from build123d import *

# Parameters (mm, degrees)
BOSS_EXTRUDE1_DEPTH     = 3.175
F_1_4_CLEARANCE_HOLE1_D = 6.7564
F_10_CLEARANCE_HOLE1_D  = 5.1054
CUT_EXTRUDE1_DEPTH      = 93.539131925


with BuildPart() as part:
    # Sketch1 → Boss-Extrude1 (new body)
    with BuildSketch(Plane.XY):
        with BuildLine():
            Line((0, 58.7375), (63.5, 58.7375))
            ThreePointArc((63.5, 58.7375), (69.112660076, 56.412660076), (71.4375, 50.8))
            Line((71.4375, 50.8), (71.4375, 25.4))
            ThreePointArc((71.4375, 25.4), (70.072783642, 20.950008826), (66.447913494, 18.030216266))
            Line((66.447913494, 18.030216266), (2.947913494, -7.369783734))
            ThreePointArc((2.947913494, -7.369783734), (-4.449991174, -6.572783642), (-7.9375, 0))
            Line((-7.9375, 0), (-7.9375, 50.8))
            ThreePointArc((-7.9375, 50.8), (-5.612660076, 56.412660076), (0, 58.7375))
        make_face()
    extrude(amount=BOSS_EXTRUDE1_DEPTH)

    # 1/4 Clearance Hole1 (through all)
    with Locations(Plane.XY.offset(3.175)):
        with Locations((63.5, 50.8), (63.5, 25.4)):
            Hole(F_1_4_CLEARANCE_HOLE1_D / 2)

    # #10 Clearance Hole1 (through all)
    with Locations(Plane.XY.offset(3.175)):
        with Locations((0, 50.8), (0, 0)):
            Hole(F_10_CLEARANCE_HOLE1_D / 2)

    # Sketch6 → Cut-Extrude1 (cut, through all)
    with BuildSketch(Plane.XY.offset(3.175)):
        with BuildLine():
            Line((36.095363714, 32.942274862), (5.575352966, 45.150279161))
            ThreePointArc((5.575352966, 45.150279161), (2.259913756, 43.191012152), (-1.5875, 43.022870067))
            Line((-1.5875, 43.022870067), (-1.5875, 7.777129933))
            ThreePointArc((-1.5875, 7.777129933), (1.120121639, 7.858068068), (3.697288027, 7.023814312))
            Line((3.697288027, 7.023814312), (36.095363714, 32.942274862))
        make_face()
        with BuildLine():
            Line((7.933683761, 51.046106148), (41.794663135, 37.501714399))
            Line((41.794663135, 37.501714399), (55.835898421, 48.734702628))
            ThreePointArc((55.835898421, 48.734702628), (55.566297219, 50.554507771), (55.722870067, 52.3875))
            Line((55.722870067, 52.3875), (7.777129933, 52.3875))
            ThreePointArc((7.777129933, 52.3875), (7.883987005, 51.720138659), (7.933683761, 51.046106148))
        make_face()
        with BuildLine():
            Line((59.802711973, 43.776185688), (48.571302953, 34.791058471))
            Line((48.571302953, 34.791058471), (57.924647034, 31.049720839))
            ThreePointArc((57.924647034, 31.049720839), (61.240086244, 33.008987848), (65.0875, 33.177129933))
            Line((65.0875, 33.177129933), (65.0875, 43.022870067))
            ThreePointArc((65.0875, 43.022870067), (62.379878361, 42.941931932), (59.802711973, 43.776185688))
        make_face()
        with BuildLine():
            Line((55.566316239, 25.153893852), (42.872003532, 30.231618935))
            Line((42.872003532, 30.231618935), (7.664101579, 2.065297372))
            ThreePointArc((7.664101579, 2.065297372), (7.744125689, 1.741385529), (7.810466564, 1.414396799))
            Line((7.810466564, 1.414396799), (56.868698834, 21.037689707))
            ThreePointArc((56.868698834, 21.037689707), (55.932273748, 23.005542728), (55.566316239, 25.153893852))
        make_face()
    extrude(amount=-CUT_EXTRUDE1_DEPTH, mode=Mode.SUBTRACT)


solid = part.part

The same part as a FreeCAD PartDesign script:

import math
import FreeCAD as App
import Part
import Sketcher
from FreeCAD import Vector
Q = App.Units.Quantity

doc = App.newDocument("Part")
body = doc.addObject("PartDesign::Body", "Body")

sketch1 = doc.addObject("Sketcher::SketchObject", "Sketch")
body.addObject(sketch1)
sketch1.AttachmentSupport = (doc.XY_Plane, [""])
sketch1.MapMode = "FlatFace"
sketch1.addGeometry([
    Part.LineSegment(Vector(64, 59, 0), Vector(0, 59, 0)),
    Part.ArcOfCircle(Part.Circle(Vector(0, 51, 0), Vector(0, 0, 1), 8), math.radians(90), math.radians(180)),
    Part.LineSegment(Vector(-8, 51, 0), Vector(-8, 0, 0)),
    Part.ArcOfCircle(Part.Circle(Vector(0, 0, 0), Vector(0, 0, 1), 8), math.radians(180), math.radians(292)),
    Part.LineSegment(Vector(3, -7, 0), Vector(66, 18, 0)),
    Part.ArcOfCircle(Part.Circle(Vector(64, 25, 0), Vector(0, 0, 1), 8), math.radians(-68), math.radians(0)),
    Part.LineSegment(Vector(71, 25, 0), Vector(71, 51, 0)),
    Part.ArcOfCircle(Part.Circle(Vector(64, 51, 0), Vector(0, 0, 1), 8), math.radians(0), math.radians(90)),
], False)
sketch1.addConstraint([
    Sketcher.Constraint("Tangent", 0, 2, 1, 1),
    Sketcher.Constraint("Tangent", 1, 2, 2, 1),
    Sketcher.Constraint("Tangent", 2, 2, 3, 1),
    Sketcher.Constraint("Tangent", 3, 2, 4, 1),
    Sketcher.Constraint("Tangent", 4, 2, 5, 1),
    Sketcher.Constraint("Tangent", 5, 2, 6, 1),
    Sketcher.Constraint("Tangent", 6, 2, 7, 1),
    Sketcher.Constraint("Tangent", 7, 2, 0, 1),
    Sketcher.Constraint("Horizontal", 0),
    Sketcher.Constraint("Vertical", 2),
    Sketcher.Constraint("Vertical", 6),
    Sketcher.Constraint("Coincident", 3, 3, -1, 1),
    Sketcher.Constraint("Equal", 1, 3),
    Sketcher.Constraint("Equal", 3, 5),
    Sketcher.Constraint("Equal", 5, 7),
    Sketcher.Constraint("DistanceY", 2, 2, 2, 1, Q("2 in")),
    Sketcher.Constraint("DistanceY", 6, 1, 6, 2, Q("1 in")),
    Sketcher.Constraint("DistanceX", 0, 2, 0, 1, Q("2.5 in")),
    Sketcher.Constraint("Radius", 1, Q("0.3125 in")),
])
pad1 = doc.addObject("PartDesign::Pad", "Pad")
body.addObject(pad1)
pad1.Profile = sketch1
pad1.Length = Q("0.125 in")

sketch2 = doc.addObject("Sketcher::SketchObject", "Sketch001")
body.addObject(sketch2)
sketch2.AttachmentSupport = (doc.XY_Plane, [""])
sketch2.MapMode = "FlatFace"
sketch2.AttachmentOffset = App.Placement(Vector(0, 0, 0.125 * 25.4), App.Rotation())
sketch2.addGeometry([
    Part.Circle(Vector(63.5, 50.8, 0), Vector(0, 0, 1), 3.4),
    Part.Circle(Vector(63.5, 25.4, 0), Vector(0, 0, 1), 3.4),
], False)
sketch2.addConstraint([
    Sketcher.Constraint("Equal", 0, 1),
    Sketcher.Constraint("Vertical", 0, 3, 1, 3),
    Sketcher.Constraint("Diameter", 0, Q("0.266 in")),
    Sketcher.Constraint("DistanceY", -1, 1, 0, 3, Q("2 in")),
    Sketcher.Constraint("DistanceY", -1, 1, 1, 3, Q("1 in")),
    Sketcher.Constraint("DistanceX", -1, 1, 0, 3, Q("2.5 in")),
])
doc.recompute()
hole = doc.addObject("PartDesign::Hole", "Hole")
body.addObject(hole)
hole.Profile = sketch2
hole.ThreadType = "None"
hole.Diameter = Q("0.266 in")
hole.DepthType = "ThroughAll"

sketch3 = doc.addObject("Sketcher::SketchObject", "Sketch002")
body.addObject(sketch3)
sketch3.AttachmentSupport = (doc.XY_Plane, [""])
sketch3.MapMode = "FlatFace"
sketch3.AttachmentOffset = App.Placement(Vector(0, 0, 0.125 * 25.4), App.Rotation())
sketch3.addGeometry([
    Part.Circle(Vector(0, 50.8, 0), Vector(0, 0, 1), 2.6),
    Part.Circle(Vector(0, 0, 0), Vector(0, 0, 1), 2.6),
], False)
sketch3.addConstraint([
    Sketcher.Constraint("Coincident", 1, 3, -1, 1),
    Sketcher.Constraint("Equal", 0, 1),
    Sketcher.Constraint("PointOnObject", 0, 3, -2),
    Sketcher.Constraint("Diameter", 0, Q("0.201 in")),
    Sketcher.Constraint("DistanceY", -1, 1, 0, 3, Q("2 in")),
])
doc.recompute()
hole2 = doc.addObject("PartDesign::Hole", "Hole001")
body.addObject(hole2)
hole2.Profile = sketch3
hole2.ThreadType = "None"
hole2.Diameter = Q("0.201 in")
hole2.DepthType = "ThroughAll"

sketch4 = doc.addObject("Sketcher::SketchObject", "Sketch003")
body.addObject(sketch4)
sketch4.AttachmentSupport = (doc.XY_Plane, [""])
sketch4.MapMode = "FlatFace"
sketch4.AttachmentOffset = App.Placement(Vector(0, 0, 0.125 * 25.4), App.Rotation())
sketch4.addGeometry([
    Part.LineSegment(Vector(36.1, 32.9, 0), Vector(5.6, 45.2, 0)),
    Part.ArcOfCircle(Part.Circle(Vector(0, 50.8, 0), Vector(0, 0, 1), 7.9), math.radians(-102), math.radians(-45)),
    Part.LineSegment(Vector(-1.6, 43, 0), Vector(-1.6, 7.8, 0)),
    Part.ArcOfCircle(Part.Circle(Vector(0, 0, 0), Vector(0, 0, 1), 7.9), math.radians(62), math.radians(102)),
    Part.LineSegment(Vector(3.7, 7, 0), Vector(36.1, 32.9, 0)),
    Part.LineSegment(Vector(7.9, 51, 0), Vector(41.8, 37.5, 0)),
    Part.LineSegment(Vector(41.8, 37.5, 0), Vector(55.8, 48.7, 0)),
    Part.ArcOfCircle(Part.Circle(Vector(63.5, 50.8, 0), Vector(0, 0, 1), 7.9), math.radians(168), math.radians(195)),
    Part.LineSegment(Vector(55.7, 52.4, 0), Vector(7.8, 52.4, 0)),
    Part.ArcOfCircle(Part.Circle(Vector(0, 50.8, 0), Vector(0, 0, 1), 7.9), math.radians(1.78), math.radians(11.54)),
    Part.LineSegment(Vector(59.8, 43.8, 0), Vector(48.6, 34.8, 0)),
    Part.LineSegment(Vector(48.6, 34.8, 0), Vector(57.9, 31, 0)),
    Part.ArcOfCircle(Part.Circle(Vector(63.5, 25.4, 0), Vector(0, 0, 1), 7.9), math.radians(78), math.radians(135)),
    Part.LineSegment(Vector(65.1, 33.2, 0), Vector(65.1, 43, 0)),
    Part.ArcOfCircle(Part.Circle(Vector(63.5, 50.8, 0), Vector(0, 0, 1), 7.9), math.radians(-118), math.radians(-78)),
    Part.LineSegment(Vector(55.6, 25.2, 0), Vector(42.9, 30.2, 0)),
    Part.LineSegment(Vector(42.9, 30.2, 0), Vector(7.7, 2.1, 0)),
    Part.ArcOfCircle(Part.Circle(Vector(0, 0, 0), Vector(0, 0, 1), 7.9), math.radians(10.26), math.radians(15.08)),
    Part.LineSegment(Vector(7.8, 1.4, 0), Vector(56.9, 21, 0)),
    Part.ArcOfCircle(Part.Circle(Vector(63.5, 25.4, 0), Vector(0, 0, 1), 7.9), math.radians(-178), math.radians(-147)),
], False)
sketch4.addConstraint([
    Sketcher.Constraint("Coincident", 0, 2, 1, 2),
    Sketcher.Constraint("Coincident", 1, 1, 2, 1),
    Sketcher.Constraint("Coincident", 2, 2, 3, 2),
    Sketcher.Constraint("Coincident", 3, 1, 4, 1),
    Sketcher.Constraint("Coincident", 4, 2, 0, 1),
    Sketcher.Constraint("Coincident", 5, 2, 6, 1),
    Sketcher.Constraint("Coincident", 6, 2, 7, 2),
    Sketcher.Constraint("Coincident", 7, 1, 8, 1),
    Sketcher.Constraint("Coincident", 8, 2, 9, 2),
    Sketcher.Constraint("Coincident", 9, 1, 5, 1),
    Sketcher.Constraint("Coincident", 10, 2, 11, 1),
    Sketcher.Constraint("Coincident", 11, 2, 12, 2),
    Sketcher.Constraint("Coincident", 12, 1, 13, 1),
    Sketcher.Constraint("Coincident", 13, 2, 14, 2),
    Sketcher.Constraint("Coincident", 14, 1, 10, 1),
    Sketcher.Constraint("Coincident", 15, 2, 16, 1),
    Sketcher.Constraint("Coincident", 16, 2, 17, 2),
    Sketcher.Constraint("Coincident", 17, 1, 18, 1),
    Sketcher.Constraint("Coincident", 18, 2, 19, 2),
    Sketcher.Constraint("Coincident", 19, 1, 15, 1),
    Sketcher.Constraint("Vertical", 2),
    Sketcher.Constraint("Horizontal", 8),
    Sketcher.Constraint("Vertical", 13),
    Sketcher.Constraint("Coincident", 3, 3, -1, 1),
    Sketcher.Constraint("Coincident", 17, 3, -1, 1),
    Sketcher.Constraint("Coincident", 9, 3, 1, 3),
    Sketcher.Constraint("Coincident", 14, 3, 7, 3),
    Sketcher.Constraint("Coincident", 19, 3, 12, 3),
    Sketcher.Constraint("Equal", 1, 3),
    Sketcher.Constraint("Equal", 3, 7),
    Sketcher.Constraint("Equal", 7, 9),
    Sketcher.Constraint("Equal", 9, 12),
    Sketcher.Constraint("Equal", 12, 14),
    Sketcher.Constraint("Equal", 14, 17),
    Sketcher.Constraint("Equal", 17, 19),
    Sketcher.Constraint("PointOnObject", 1, 3, -2),
    Sketcher.Constraint("Parallel", 0, 5),
    Sketcher.Constraint("Parallel", 4, 6),
    Sketcher.Constraint("Parallel", 6, 10),
    Sketcher.Constraint("Parallel", 5, 11),
    Sketcher.Constraint("Parallel", 11, 15),
    Sketcher.Constraint("Parallel", 10, 16),
    Sketcher.Constraint("Horizontal", 1, 3, 7, 3),
    Sketcher.Constraint("Horizontal", 1, 1, 13, 2),
    Sketcher.Constraint("Vertical", 7, 3, 12, 3),
    Sketcher.Constraint("DistanceY", -1, 1, 1, 3, Q("2 in")),
    Sketcher.Constraint("DistanceY", -1, 1, 12, 3, Q("1 in")),
    Sketcher.Constraint("Radius", 1, Q("0.3125 in")),
    Sketcher.Constraint("DistanceX", -1, 1, 7, 3, Q("2.5 in")),
    Sketcher.Constraint("DistanceX", 1, 1, -1, 1, Q("0.0625 in")),
    Sketcher.Constraint("DistanceY", -1, 1, 7, 1, Q("2.0625 in")),
    Sketcher.Constraint("DistanceX", -1, 1, 6, 2, 55.835898),
    Sketcher.Constraint("DistanceX", -1, 1, 16, 2, 7.664102),
    Sketcher.Constraint("DistanceX", -1, 1, 18, 2, 56.868699),
    Sketcher.Constraint("DistanceX", 4, 2, 5, 2, 5.699299),
    Sketcher.Constraint("DistanceX", 15, 2, 10, 2, 5.699299),
    Sketcher.Constraint("DistanceY", 15, 2, 11, 2, 0.818102),
    Sketcher.Constraint("DistanceY", 17, 1, 16, 2, 0.650901),
    Sketcher.Constraint("Distance", 4, 41.489781),
    Sketcher.Constraint("Distance", 5, 36.469391),
    Sketcher.Constraint("Distance", 10, 14.383221),
    Sketcher.Constraint("Distance", 11, 10.07386),
    Sketcher.Constraint("DistanceY", -1, 1, 0, 2, 45.150279),
])
pocket1 = doc.addObject("PartDesign::Pocket", "Pocket")
body.addObject(pocket1)
pocket1.Profile = sketch4
pocket1.Type = "ThroughAll"

doc.recompute()
